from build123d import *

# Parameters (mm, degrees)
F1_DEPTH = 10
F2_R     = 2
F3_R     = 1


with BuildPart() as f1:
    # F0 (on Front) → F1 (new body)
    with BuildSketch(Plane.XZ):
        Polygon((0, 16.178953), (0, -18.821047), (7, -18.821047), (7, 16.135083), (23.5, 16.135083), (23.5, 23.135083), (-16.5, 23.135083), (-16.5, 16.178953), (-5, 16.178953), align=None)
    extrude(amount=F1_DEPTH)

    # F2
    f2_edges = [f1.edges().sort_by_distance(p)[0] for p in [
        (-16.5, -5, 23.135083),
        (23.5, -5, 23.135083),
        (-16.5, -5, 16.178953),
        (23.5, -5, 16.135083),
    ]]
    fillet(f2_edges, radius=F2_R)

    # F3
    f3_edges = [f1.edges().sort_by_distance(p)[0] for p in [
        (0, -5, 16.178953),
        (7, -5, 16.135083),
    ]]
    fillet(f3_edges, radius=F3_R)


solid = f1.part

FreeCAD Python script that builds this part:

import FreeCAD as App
import Part
import Sketcher
Q = App.Units.Quantity


def edges_at(feature, points):
    """Names of the edges that pass closest to the given points."""
    edges = feature.Shape.Edges
    near = lambda p: min(range(len(edges)), key=lambda i: edges[i].distToShape(Part.Vertex(*p))[0])
    return sorted({f"Edge{near(p) + 1}" for p in points})

doc = App.newDocument("Part")
body = doc.addObject("PartDesign::Body", "Body")

sketch1 = body.newObject("Sketcher::SketchObject", "Sketch")
sketch1.AttachmentSupport = (doc.getObject("XZ_Plane"), [""])
sketch1.MapMode = "FlatFace"
sketch1.addGeometry([
    Part.LineSegment(App.Vector(0, 16, 0), App.Vector(0, -19, 0)),
    Part.LineSegment(App.Vector(0, -19, 0), App.Vector(7, -19, 0)),
    Part.LineSegment(App.Vector(7, -19, 0), App.Vector(7, 16, 0)),
    Part.LineSegment(App.Vector(7, 16, 0), App.Vector(24, 16, 0)),
    Part.LineSegment(App.Vector(24, 16, 0), App.Vector(24, 23, 0)),
    Part.LineSegment(App.Vector(24, 23, 0), App.Vector(-16, 23, 0)),
    Part.LineSegment(App.Vector(-16, 23, 0), App.Vector(-16, 16, 0)),
    Part.LineSegment(App.Vector(-16, 16, 0), App.Vector(0, 16, 0)),
], False)
sketch1.addConstraint([
    Sketcher.Constraint("Coincident", 0, 2, 1, 1),
    Sketcher.Constraint("Coincident", 1, 2, 2, 1),
    Sketcher.Constraint("Coincident", 2, 2, 3, 1),
    Sketcher.Constraint("Coincident", 3, 2, 4, 1),
    Sketcher.Constraint("Coincident", 4, 2, 5, 1),
    Sketcher.Constraint("Coincident", 5, 2, 6, 1),
    Sketcher.Constraint("Coincident", 6, 2, 7, 1),
    Sketcher.Constraint("Coincident", 7, 2, 0, 1),
    Sketcher.Constraint("Vertical", 0),
    Sketcher.Constraint("Horizontal", 1),
    Sketcher.Constraint("Vertical", 2),
    Sketcher.Constraint("Horizontal", 3),
    Sketcher.Constraint("Vertical", 4),
    Sketcher.Constraint("Horizontal", 5),
    Sketcher.Constraint("Vertical", 6),
    Sketcher.Constraint("Horizontal", 7),
    Sketcher.Constraint("PointOnObject", 0, 2, -2),
    Sketcher.Constraint("Equal", 3, 7),
    Sketcher.Constraint("Equal", 1, 4),
    Sketcher.Constraint("DistanceX", 1, 1, 1, 2, Q("7 mm")),
    Sketcher.Constraint("DistanceX", 5, 2, 5, 1, Q("40 mm")),
    Sketcher.Constraint("DistanceY", 0, 2, 0, 1, Q("35 mm")),
    Sketcher.Constraint("DistanceY", 2, 1, 2, 2, Q("34.95613 mm")),
    Sketcher.Constraint("DistanceY", 0, 2, -1, 1, Q("18.821047 mm")),
])
pad1 = body.newObject("PartDesign::Pad", "Pad")
pad1.Profile = sketch1
pad1.Length = 10
doc.recompute()

fillet = body.newObject("PartDesign::Fillet", "Fillet")
fillet.Base = (pad1, edges_at(pad1, [
    (-16.5, -5, 23.135),
    (23.5, -5, 23.135),
    (-16.5, -5, 16.179),
    (23.5, -5, 16.135),
]))
fillet.Radius = 2
doc.recompute()

fillet2 = body.newObject("PartDesign::Fillet", "Fillet001")
fillet2.Base = (fillet, edges_at(fillet, [(0, -5, 16.179), (7, -5, 16.135)]))
fillet2.Radius = 1

doc.recompute()
